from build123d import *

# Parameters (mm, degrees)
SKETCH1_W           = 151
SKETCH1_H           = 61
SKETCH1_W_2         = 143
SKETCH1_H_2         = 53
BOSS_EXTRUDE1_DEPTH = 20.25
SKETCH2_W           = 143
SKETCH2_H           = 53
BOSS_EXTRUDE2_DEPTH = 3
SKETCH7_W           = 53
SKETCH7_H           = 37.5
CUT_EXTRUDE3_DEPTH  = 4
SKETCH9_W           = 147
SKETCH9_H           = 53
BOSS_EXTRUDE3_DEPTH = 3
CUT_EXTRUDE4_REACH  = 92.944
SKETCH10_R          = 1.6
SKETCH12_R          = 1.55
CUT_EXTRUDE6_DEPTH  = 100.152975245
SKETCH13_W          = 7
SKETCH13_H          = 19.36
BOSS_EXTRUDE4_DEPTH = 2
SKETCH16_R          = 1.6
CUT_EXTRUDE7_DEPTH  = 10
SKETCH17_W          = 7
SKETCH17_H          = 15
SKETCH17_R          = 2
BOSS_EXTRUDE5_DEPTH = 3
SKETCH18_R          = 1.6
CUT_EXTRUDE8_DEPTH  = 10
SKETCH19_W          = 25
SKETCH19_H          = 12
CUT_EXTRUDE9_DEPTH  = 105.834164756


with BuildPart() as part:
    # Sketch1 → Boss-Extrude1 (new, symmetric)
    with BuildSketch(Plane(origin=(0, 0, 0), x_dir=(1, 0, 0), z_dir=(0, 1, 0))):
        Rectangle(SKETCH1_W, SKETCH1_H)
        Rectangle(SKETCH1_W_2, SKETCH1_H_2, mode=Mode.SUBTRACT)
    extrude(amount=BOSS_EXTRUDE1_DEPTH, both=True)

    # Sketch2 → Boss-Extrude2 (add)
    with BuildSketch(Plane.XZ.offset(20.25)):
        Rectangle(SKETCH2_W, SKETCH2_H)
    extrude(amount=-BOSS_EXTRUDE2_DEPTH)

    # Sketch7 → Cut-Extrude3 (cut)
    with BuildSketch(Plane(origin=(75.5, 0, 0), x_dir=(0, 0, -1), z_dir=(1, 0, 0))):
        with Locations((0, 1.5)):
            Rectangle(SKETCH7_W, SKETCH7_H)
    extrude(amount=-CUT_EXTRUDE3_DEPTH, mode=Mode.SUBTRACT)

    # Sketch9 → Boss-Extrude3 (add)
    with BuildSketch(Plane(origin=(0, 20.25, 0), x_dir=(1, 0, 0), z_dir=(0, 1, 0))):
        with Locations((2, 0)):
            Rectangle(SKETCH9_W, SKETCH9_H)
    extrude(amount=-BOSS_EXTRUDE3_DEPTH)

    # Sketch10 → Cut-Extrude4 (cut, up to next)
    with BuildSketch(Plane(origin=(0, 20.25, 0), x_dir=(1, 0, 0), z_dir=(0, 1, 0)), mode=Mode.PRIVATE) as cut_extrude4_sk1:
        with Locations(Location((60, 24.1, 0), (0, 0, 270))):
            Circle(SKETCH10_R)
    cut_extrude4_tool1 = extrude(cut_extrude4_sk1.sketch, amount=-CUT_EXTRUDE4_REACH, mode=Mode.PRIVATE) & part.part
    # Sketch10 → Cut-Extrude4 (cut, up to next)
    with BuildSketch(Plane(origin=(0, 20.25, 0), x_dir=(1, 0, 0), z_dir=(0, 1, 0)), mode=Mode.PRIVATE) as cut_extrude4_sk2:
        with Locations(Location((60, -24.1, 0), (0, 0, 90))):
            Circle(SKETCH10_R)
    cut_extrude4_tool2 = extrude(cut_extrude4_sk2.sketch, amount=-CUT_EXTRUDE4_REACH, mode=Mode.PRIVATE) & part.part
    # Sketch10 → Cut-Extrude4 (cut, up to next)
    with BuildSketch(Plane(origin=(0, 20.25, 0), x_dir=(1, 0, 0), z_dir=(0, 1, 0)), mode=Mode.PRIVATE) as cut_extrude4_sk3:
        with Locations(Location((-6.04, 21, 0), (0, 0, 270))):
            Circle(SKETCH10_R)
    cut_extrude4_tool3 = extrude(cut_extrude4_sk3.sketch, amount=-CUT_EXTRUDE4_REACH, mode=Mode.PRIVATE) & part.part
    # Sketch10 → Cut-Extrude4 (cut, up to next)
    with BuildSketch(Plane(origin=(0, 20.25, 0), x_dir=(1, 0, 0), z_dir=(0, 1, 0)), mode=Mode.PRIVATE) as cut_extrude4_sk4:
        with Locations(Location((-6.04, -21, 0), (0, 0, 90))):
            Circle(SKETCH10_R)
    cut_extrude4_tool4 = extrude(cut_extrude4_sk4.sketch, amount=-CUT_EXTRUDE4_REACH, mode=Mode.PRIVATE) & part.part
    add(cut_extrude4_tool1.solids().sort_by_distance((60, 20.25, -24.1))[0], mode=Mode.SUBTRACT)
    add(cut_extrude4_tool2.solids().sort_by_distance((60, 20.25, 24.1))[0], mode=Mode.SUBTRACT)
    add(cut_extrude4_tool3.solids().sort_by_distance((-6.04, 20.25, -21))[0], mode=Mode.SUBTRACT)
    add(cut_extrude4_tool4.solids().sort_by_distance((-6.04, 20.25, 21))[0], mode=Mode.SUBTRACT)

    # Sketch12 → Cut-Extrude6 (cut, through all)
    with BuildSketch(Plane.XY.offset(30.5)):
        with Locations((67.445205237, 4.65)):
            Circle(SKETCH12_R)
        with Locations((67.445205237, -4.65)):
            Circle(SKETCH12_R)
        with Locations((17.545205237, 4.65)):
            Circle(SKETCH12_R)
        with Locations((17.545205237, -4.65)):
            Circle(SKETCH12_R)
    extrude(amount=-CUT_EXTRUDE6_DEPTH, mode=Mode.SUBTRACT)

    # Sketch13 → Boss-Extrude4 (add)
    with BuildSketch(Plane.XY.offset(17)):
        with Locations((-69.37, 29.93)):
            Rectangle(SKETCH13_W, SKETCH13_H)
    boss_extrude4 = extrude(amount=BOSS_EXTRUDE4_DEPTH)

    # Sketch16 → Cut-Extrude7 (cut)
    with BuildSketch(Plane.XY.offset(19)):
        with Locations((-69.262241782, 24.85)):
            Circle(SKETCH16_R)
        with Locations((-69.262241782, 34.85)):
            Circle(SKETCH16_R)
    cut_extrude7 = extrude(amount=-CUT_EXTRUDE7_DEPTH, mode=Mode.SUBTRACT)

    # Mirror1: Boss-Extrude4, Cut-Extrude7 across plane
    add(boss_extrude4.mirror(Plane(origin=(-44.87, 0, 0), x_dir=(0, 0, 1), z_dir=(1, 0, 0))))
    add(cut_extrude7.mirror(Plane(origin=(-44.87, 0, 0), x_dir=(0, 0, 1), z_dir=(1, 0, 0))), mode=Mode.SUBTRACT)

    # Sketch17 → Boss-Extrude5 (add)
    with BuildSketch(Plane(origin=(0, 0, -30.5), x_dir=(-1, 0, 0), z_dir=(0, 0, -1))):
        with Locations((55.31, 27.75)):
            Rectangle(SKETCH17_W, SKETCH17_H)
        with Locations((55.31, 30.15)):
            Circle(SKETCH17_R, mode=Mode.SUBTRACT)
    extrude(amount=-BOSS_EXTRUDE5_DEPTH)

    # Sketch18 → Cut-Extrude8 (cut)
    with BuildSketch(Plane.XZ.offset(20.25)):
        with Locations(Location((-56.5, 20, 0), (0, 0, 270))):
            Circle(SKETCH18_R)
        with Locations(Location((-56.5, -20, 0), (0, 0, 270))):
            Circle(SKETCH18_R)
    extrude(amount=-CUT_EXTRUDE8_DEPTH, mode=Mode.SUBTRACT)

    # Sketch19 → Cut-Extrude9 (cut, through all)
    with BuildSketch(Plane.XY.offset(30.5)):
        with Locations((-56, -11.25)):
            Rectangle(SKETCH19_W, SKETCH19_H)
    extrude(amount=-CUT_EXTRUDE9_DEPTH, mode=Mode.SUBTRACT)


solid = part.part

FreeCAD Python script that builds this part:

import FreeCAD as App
import Part
import Sketcher
from FreeCAD import Vector
Q = App.Units.Quantity

doc = App.newDocument("Part")
body = doc.addObject("PartDesign::Body", "Body")

sketch1 = body.newObject("Sketcher::SketchObject", "Sketch")
sketch1.AttachmentSupport = (doc.getObject("XZ_Plane"), [""])
sketch1.MapMode = "FlatFace"
sketch1.addGeometry([
    Part.LineSegment(Vector(-76, -30, 0), Vector(-76, 30, 0)),
    Part.LineSegment(Vector(-76, 30, 0), Vector(76, 30, 0)),
    Part.LineSegment(Vector(76, 30, 0), Vector(76, -30, 0)),
    Part.LineSegment(Vector(76, -30, 0), Vector(-76, -30, 0)),
    Part.LineSegment(Vector(72, 26, 0), Vector(-72, 26, 0)),
    Part.LineSegment(Vector(-72, 26, 0), Vector(-72, -26, 0)),
    Part.LineSegment(Vector(-72, -26, 0), Vector(72, -26, 0)),
    Part.LineSegment(Vector(72, -26, 0), Vector(72, 26, 0)),
], False)
sketch1.addConstraint([
    Sketcher.Constraint("Coincident", 0, 2, 1, 1),
    Sketcher.Constraint("Coincident", 1, 2, 2, 1),
    Sketcher.Constraint("Coincident", 2, 2, 3, 1),
    Sketcher.Constraint("Coincident", 3, 2, 0, 1),
    Sketcher.Constraint("Coincident", 4, 2, 5, 1),
    Sketcher.Constraint("Coincident", 5, 2, 6, 1),
    Sketcher.Constraint("Coincident", 6, 2, 7, 1),
    Sketcher.Constraint("Coincident", 7, 2, 4, 1),
    Sketcher.Constraint("Vertical", 0),
    Sketcher.Constraint("Horizontal", 1),
    Sketcher.Constraint("Vertical", 2),
    Sketcher.Constraint("Horizontal", 3),
    Sketcher.Constraint("Horizontal", 4),
    Sketcher.Constraint("Vertical", 5),
    Sketcher.Constraint("Horizontal", 6),
    Sketcher.Constraint("Vertical", 7),
    Sketcher.Constraint("Symmetric", 0, 2, 2, 2, -1, 1),
    Sketcher.Constraint("Symmetric", 4, 2, 6, 2, -1, 1),
    Sketcher.Constraint("DistanceX", 1, 1, 1, 2, Q("151 mm")),
    Sketcher.Constraint("DistanceX", 4, 2, 4, 1, Q("143 mm")),
    Sketcher.Constraint("DistanceY", 0, 1, 0, 2, Q("61 mm")),
    Sketcher.Constraint("DistanceY", 5, 2, 5, 1, Q("53 mm")),
])
pad1 = body.newObject("PartDesign::Pad", "Pad")
pad1.Profile = sketch1
pad1.Length = 40.5
pad1.Midplane = True

sketch2 = body.newObject("Sketcher::SketchObject", "Sketch001")
sketch2.AttachmentSupport = (doc.getObject("XZ_Plane"), [""])
sketch2.MapMode = "FlatFace"
sketch2.AttachmentOffset = App.Placement(Vector(0, 0, 20.25), App.Rotation())
sketch2.addGeometry([
    Part.LineSegment(Vector(-72, 26, 0), Vector(-72, -26, 0)),
    Part.LineSegment(Vector(-72, -26, 0), Vector(72, -26, 0)),
    Part.LineSegment(Vector(72, -26, 0), Vector(72, 26, 0)),
    Part.LineSegment(Vector(72, 26, 0), Vector(-72, 26, 0)),
], False)
sketch2.addConstraint([
    Sketcher.Constraint("Coincident", 0, 2, 1, 1),
    Sketcher.Constraint("Coincident", 1, 2, 2, 1),
    Sketcher.Constraint("Coincident", 2, 2, 3, 1),
    Sketcher.Constraint("Coincident", 3, 2, 0, 1),
    Sketcher.Constraint("Vertical", 0),
    Sketcher.Constraint("Horizontal", 1),
    Sketcher.Constraint("Vertical", 2),
    Sketcher.Constraint("Horizontal", 3),
    Sketcher.Constraint("Symmetric", 0, 2, 2, 2, -1, 1),
    Sketcher.Constraint("DistanceX", 1, 1, 1, 2, Q("143 mm")),
    Sketcher.Constraint("DistanceY", 0, 2, 0, 1, Q("53 mm")),
])
pad2 = body.newObject("PartDesign::Pad", "Pad001")
pad2.Profile = sketch2
pad2.Length = 3
pad2.Reversed = True

sketch3 = body.newObject("Sketcher::SketchObject", "Sketch002")
sketch3.AttachmentSupport = (doc.getObject("YZ_Plane"), [""])
sketch3.MapMode = "FlatFace"
sketch3.AttachmentOffset = App.Placement(Vector(0, 0, 75.5), App.Rotation())
sketch3.addGeometry([
    Part.LineSegment(Vector(20, 26, 0), Vector(-17, 26, 0)),
    Part.LineSegment(Vector(-17, 26, 0), Vector(-17, -26, 0)),
    Part.LineSegment(Vector(-17, -26, 0), Vector(20, -26, 0)),
    Part.LineSegment(Vector(20, -26, 0), Vector(20, 26, 0)),
], False)
sketch3.addConstraint([
    Sketcher.Constraint("Coincident", 0, 2, 1, 1),
    Sketcher.Constraint("Coincident", 1, 2, 2, 1),
    Sketcher.Constraint("Coincident", 2, 2, 3, 1),
    Sketcher.Constraint("Coincident", 3, 2, 0, 1),
    Sketcher.Constraint("Horizontal", 0),
    Sketcher.Constraint("Vertical", 1),
    Sketcher.Constraint("Horizontal", 2),
    Sketcher.Constraint("Vertical", 3),
    Sketcher.Constraint("DistanceY", 1, 2, 1, 1, Q("53 mm")),
    Sketcher.Constraint("DistanceX", 0, 2, 0, 1, Q("37.5 mm")),
    Sketcher.Constraint("DistanceY", -1, 1, 0, 2, Q("26.5 mm")),
    Sketcher.Constraint("DistanceX", 0, 2, -1, 1, Q("17.25 mm")),
])
pocket1 = body.newObject("PartDesign::Pocket", "Pocket")
pocket1.Profile = sketch3
pocket1.Length = 4

sketch4 = body.newObject("Sketcher::SketchObject", "Sketch003")
sketch4.AttachmentSupport = (doc.getObject("XZ_Plane"), [""])
sketch4.MapMode = "FlatFace"
sketch4.AttachmentOffset = App.Placement(Vector(0, 0, -20.25), App.Rotation())
sketch4.addGeometry([
    Part.LineSegment(Vector(-72, -26, 0), Vector(-72, 26, 0)),
    Part.LineSegment(Vector(-72, 26, 0), Vector(76, 26, 0)),
    Part.LineSegment(Vector(76, 26, 0), Vector(76, -26, 0)),
    Part.LineSegment(Vector(76, -26, 0), Vector(-72, -26, 0)),
], False)
sketch4.addConstraint([
    Sketcher.Constraint("Coincident", 0, 2, 1, 1),
    Sketcher.Constraint("Coincident", 1, 2, 2, 1),
    Sketcher.Constraint("Coincident", 2, 2, 3, 1),
    Sketcher.Constraint("Coincident", 3, 2, 0, 1),
    Sketcher.Constraint("Vertical", 0),
    Sketcher.Constraint("Horizontal", 1),
    Sketcher.Constraint("Vertical", 2),
    Sketcher.Constraint("Horizontal", 3),
    Sketcher.Constraint("DistanceX", 1, 1, 1, 2, Q("147 mm")),
    Sketcher.Constraint("DistanceY", 0, 1, 0, 2, Q("53 mm")),
    Sketcher.Constraint("DistanceX", 0, 2, -1, 1, Q("71.5 mm")),
    Sketcher.Constraint("DistanceY", -1, 1, 0, 2, Q("26.5 mm")),
])
pad3 = body.newObject("PartDesign::Pad", "Pad002")
pad3.Profile = sketch4
pad3.Length = 3

sketch5 = body.newObject("Sketcher::SketchObject", "Sketch004")
sketch5.AttachmentSupport = (doc.getObject("XZ_Plane"), [""])
sketch5.MapMode = "FlatFace"
sketch5.AttachmentOffset = App.Placement(Vector(0, 0, -20.25), App.Rotation())
sketch5.addGeometry(Part.Circle(Vector(60, -24.1, 0), Vector(0, 0, 1), 1.6), False)
sketch5.addConstraint([
    Sketcher.Constraint("Diameter", 0, Q("3.2 mm")),
    Sketcher.Constraint("DistanceX", -1, 1, 0, 3, Q("60 mm")),
    Sketcher.Constraint("DistanceY", 0, 3, -1, 1, Q("24.1 mm")),
])
pocket2 = body.newObject("PartDesign::Pocket", "Pocket001")
pocket2.Profile = sketch5
pocket2.Type = "UpToFirst"
pocket2.Reversed = True

sketch6 = body.newObject("Sketcher::SketchObject", "Sketch005")
sketch6.AttachmentSupport = (doc.getObject("XZ_Plane"), [""])
sketch6.MapMode = "FlatFace"
sketch6.AttachmentOffset = App.Placement(Vector(0, 0, -20.25), App.Rotation())
sketch6.addGeometry(Part.Circle(Vector(60, 24.1, 0), Vector(0, 0, 1), 1.6), False)
sketch6.addConstraint([
    Sketcher.Constraint("Diameter", 0, Q("3.2 mm")),
    Sketcher.Constraint("DistanceX", -1, 1, 0, 3, Q("60 mm")),
    Sketcher.Constraint("DistanceY", -1, 1, 0, 3, Q("24.1 mm")),
])
pocket3 = body.newObject("PartDesign::Pocket", "Pocket002")
pocket3.Profile = sketch6
pocket3.Type = "UpToFirst"
pocket3.Reversed = True

sketch7 = body.newObject("Sketcher::SketchObject", "Sketch006")
sketch7.AttachmentSupport = (doc.getObject("XZ_Plane"), [""])
sketch7.MapMode = "FlatFace"
sketch7.AttachmentOffset = App.Placement(Vector(0, 0, -20.25), App.Rotation())
sketch7.addGeometry(Part.Circle(Vector(-6, -21, 0), Vector(0, 0, 1), 1.6), False)
sketch7.addConstraint([
    Sketcher.Constraint("Diameter", 0, Q("3.2 mm")),
    Sketcher.Constraint("DistanceY", 0, 3, -1, 1, Q("21 mm")),
    Sketcher.Constraint("DistanceX", 0, 3, -1, 1, Q("6.04 mm")),
])
pocket4 = body.newObject("PartDesign::Pocket", "Pocket003")
pocket4.Profile = sketch7
pocket4.Type = "UpToFirst"
pocket4.Reversed = True

sketch8 = body.newObject("Sketcher::SketchObject", "Sketch007")
sketch8.AttachmentSupport = (doc.getObject("XZ_Plane"), [""])
sketch8.MapMode = "FlatFace"
sketch8.AttachmentOffset = App.Placement(Vector(0, 0, -20.25), App.Rotation())
sketch8.addGeometry(Part.Circle(Vector(-6, 21, 0), Vector(0, 0, 1), 1.6), False)
sketch8.addConstraint([
    Sketcher.Constraint("Diameter", 0, Q("3.2 mm")),
    Sketcher.Constraint("DistanceY", -1, 1, 0, 3, Q("21 mm")),
    Sketcher.Constraint("DistanceX", 0, 3, -1, 1, Q("6.04 mm")),
])
pocket5 = body.newObject("PartDesign::Pocket", "Pocket004")
pocket5.Profile = sketch8
pocket5.Type = "UpToFirst"
pocket5.Reversed = True

sketch9 = body.newObject("Sketcher::SketchObject", "Sketch008")
sketch9.AttachmentSupport = (doc.getObject("XY_Plane"), [""])
sketch9.MapMode = "FlatFace"
sketch9.AttachmentOffset = App.Placement(Vector(0, 0, 30.5), App.Rotation())
sketch9.addGeometry([
    Part.Circle(Vector(67.4, 4.7, 0), Vector(0, 0, 1), 1.6),
    Part.Circle(Vector(67.4, -4.7, 0), Vector(0, 0, 1), 1.6),
    Part.Circle(Vector(17.5, 4.7, 0), Vector(0, 0, 1), 1.6),
    Part.Circle(Vector(17.5, -4.7, 0), Vector(0, 0, 1), 1.6),
], False)
sketch9.addConstraint([
    Sketcher.Constraint("Equal", 0, 1),
    Sketcher.Constraint("Equal", 1, 2),
    Sketcher.Constraint("Equal", 2, 3),
    Sketcher.Constraint("Symmetric", 0, 3, 1, 3, -1),
    Sketcher.Constraint("Symmetric", 2, 3, 3, 3, -1),
    Sketcher.Constraint("Horizontal", 0, 3, 2, 3),
    Sketcher.Constraint("Diameter", 0, Q("3.1 mm")),
    Sketcher.Constraint("DistanceY", 1, 3, 0, 3, Q("9.3 mm")),
    Sketcher.Constraint("DistanceX", 2, 3, 0, 3, Q("49.9 mm")),
    Sketcher.Constraint("DistanceX", -1, 1, 0, 3, Q("67.445205 mm")),
])
pocket6 = body.newObject("PartDesign::Pocket", "Pocket005")
pocket6.Profile = sketch9
pocket6.Type = "ThroughAll"

sketch10 = body.newObject("Sketcher::SketchObject", "Sketch009")
sketch10.AttachmentSupport = (doc.getObject("XY_Plane"), [""])
sketch10.MapMode = "FlatFace"
sketch10.AttachmentOffset = App.Placement(Vector(0, 0, 17), App.Rotation())
sketch10.addGeometry([
    Part.LineSegment(Vector(-73, 40, 0), Vector(-73, 20, 0)),
    Part.LineSegment(Vector(-73, 20, 0), Vector(-66, 20, 0)),
    Part.LineSegment(Vector(-66, 20, 0), Vector(-66, 40, 0)),
    Part.LineSegment(Vector(-66, 40, 0), Vector(-73, 40, 0)),
], False)
sketch10.addConstraint([
    Sketcher.Constraint("Coincident", 0, 2, 1, 1),
    Sketcher.Constraint("Coincident", 1, 2, 2, 1),
    Sketcher.Constraint("Coincident", 2, 2, 3, 1),
    Sketcher.Constraint("Coincident", 3, 2, 0, 1),
    Sketcher.Constraint("Vertical", 0),
    Sketcher.Constraint("Horizontal", 1),
    Sketcher.Constraint("Vertical", 2),
    Sketcher.Constraint("Horizontal", 3),
    Sketcher.Constraint("DistanceX", 1, 1, 1, 2, Q("7 mm")),
    Sketcher.Constraint("DistanceY", 0, 2, 0, 1, Q("19.36 mm")),
    Sketcher.Constraint("DistanceX", 0, 2, -1, 1, Q("72.87 mm")),
    Sketcher.Constraint("DistanceY", -1, 1, 0, 2, Q("20.25 mm")),
])
pad4 = body.newObject("PartDesign::Pad", "Pad003")
pad4.Profile = sketch10
pad4.Length = 2

sketch11 = body.newObject("Sketcher::SketchObject", "Sketch010")
sketch11.AttachmentSupport = (doc.getObject("XY_Plane"), [""])
sketch11.MapMode = "FlatFace"
sketch11.AttachmentOffset = App.Placement(Vector(0, 0, 19), App.Rotation())
sketch11.addGeometry([
    Part.Circle(Vector(-69.3, 24.9, 0), Vector(0, 0, 1), 1.6),
    Part.Circle(Vector(-69.3, 34.9, 0), Vector(0, 0, 1), 1.6),
], False)
sketch11.addConstraint([
    Sketcher.Constraint("Equal", 0, 1),
    Sketcher.Constraint("Vertical", 0, 3, 1, 3),
    Sketcher.Constraint("Diameter", 0, Q("3.2 mm")),
    Sketcher.Constraint("DistanceY", 0, 3, 1, 3, Q("10 mm")),
    Sketcher.Constraint("DistanceY", -1, 1, 0, 3, Q("24.85 mm")),
    Sketcher.Constraint("DistanceX", 0, 3, -1, 1, Q("69.262242 mm")),
])
pocket7 = body.newObject("PartDesign::Pocket", "Pocket006")
pocket7.Profile = sketch11
pocket7.Length = 10
doc.recompute()

datumplane = body.newObject("PartDesign::Plane", "DatumPlane")
datumplane.AttachmentSupport = (doc.getObject("YZ_Plane"), [""])
datumplane.MapMode = "FlatFace"
datumplane.AttachmentOffset = App.Placement(Vector(0, 0, -44.87), App.Rotation())
mirrored = body.newObject("PartDesign::Mirrored", "Mirrored")
mirrored.Originals = [pad4, pocket7]
mirrored.MirrorPlane = (datumplane, [""])
body.Tip = mirrored

sketch12 = body.newObject("Sketcher::SketchObject", "Sketch011")
sketch12.AttachmentSupport = (doc.getObject("XY_Plane"), [""])
sketch12.MapMode = "FlatFace"
sketch12.AttachmentOffset = App.Placement(Vector(0, 0, -30.5), App.Rotation())
sketch12.addGeometry([
    Part.LineSegment(Vector(-51.8, 35.2, 0), Vector(-51.8, 20.2, 0)),
    Part.LineSegment(Vector(-51.8, 20.2, 0), Vector(-58.8, 20.2, 0)),
    Part.LineSegment(Vector(-58.8, 20.2, 0), Vector(-58.8, 35.2, 0)),
    Part.LineSegment(Vector(-58.8, 35.2, 0), Vector(-51.8, 35.2, 0)),
    Part.Circle(Vector(-55.3, 30.1, 0), Vector(0, 0, 1), 2),
], False)
sketch12.addConstraint([
    Sketcher.Constraint("Coincident", 0, 2, 1, 1),
    Sketcher.Constraint("Coincident", 1, 2, 2, 1),
    Sketcher.Constraint("Coincident", 2, 2, 3, 1),
    Sketcher.Constraint("Coincident", 3, 2, 0, 1),
    Sketcher.Constraint("Vertical", 0),
    Sketcher.Constraint("Horizontal", 1),
    Sketcher.Constraint("Vertical", 2),
    Sketcher.Constraint("Horizontal", 3),
    Sketcher.Constraint("Diameter", 4, Q("4 mm")),
    Sketcher.Constraint("DistanceX", 1, 2, 1, 1, Q("7 mm")),
    Sketcher.Constraint("DistanceY", 0, 2, 0, 1, Q("15 mm")),
    Sketcher.Constraint("DistanceX", 4, 3, 0, 2, Q("3.5 mm")),
    Sketcher.Constraint("DistanceY", 0, 2, 4, 3, Q("9.9 mm")),
    Sketcher.Constraint("DistanceX", 4, 3, -1, 1, Q("55.31 mm")),
    Sketcher.Constraint("DistanceY", -1, 1, 4, 3, Q("30.15 mm")),
])
pad5 = body.newObject("PartDesign::Pad", "Pad004")
pad5.Profile = sketch12
pad5.Length = 3

sketch13 = body.newObject("Sketcher::SketchObject", "Sketch012")
sketch13.AttachmentSupport = (doc.getObject("XZ_Plane"), [""])
sketch13.MapMode = "FlatFace"
sketch13.AttachmentOffset = App.Placement(Vector(0, 0, 20.25), App.Rotation())
sketch13.addGeometry([
    Part.Circle(Vector(-56.5, 20, 0), Vector(0, 0, 1), 1.6),
    Part.Circle(Vector(-56.5, -20, 0), Vector(0, 0, 1), 1.6),
], False)
sketch13.addConstraint([
    Sketcher.Constraint("Equal", 0, 1),
    Sketcher.Constraint("Symmetric", 0, 3, 1, 3, -1),
    Sketcher.Constraint("Diameter", 0, Q("3.2 mm")),
    Sketcher.Constraint("DistanceY", -1, 1, 0, 3, Q("20 mm")),
    Sketcher.Constraint("DistanceX", 0, 3, -1, 1, Q("56.5 mm")),
])
pocket8 = body.newObject("PartDesign::Pocket", "Pocket007")
pocket8.Profile = sketch13
pocket8.Length = 10

sketch14 = body.newObject("Sketcher::SketchObject", "Sketch013")
sketch14.AttachmentSupport = (doc.getObject("XY_Plane"), [""])
sketch14.MapMode = "FlatFace"
sketch14.AttachmentOffset = App.Placement(Vector(0, 0, 30.5), App.Rotation())
sketch14.addGeometry([
    Part.LineSegment(Vector(-68, -5, 0), Vector(-68, -17, 0)),
    Part.LineSegment(Vector(-68, -17, 0), Vector(-44, -17, 0)),
    Part.LineSegment(Vector(-44, -17, 0), Vector(-44, -5, 0)),
    Part.LineSegment(Vector(-44, -5, 0), Vector(-68, -5, 0)),
], False)
sketch14.addConstraint([
    Sketcher.Constraint("Coincident", 0, 2, 1, 1),
    Sketcher.Constraint("Coincident", 1, 2, 2, 1),
    Sketcher.Constraint("Coincident", 2, 2, 3, 1),
    Sketcher.Constraint("Coincident", 3, 2, 0, 1),
    Sketcher.Constraint("Vertical", 0),
    Sketcher.Constraint("Horizontal", 1),
    Sketcher.Constraint("Vertical", 2),
    Sketcher.Constraint("Horizontal", 3),
    Sketcher.Constraint("DistanceX", 1, 1, 1, 2, Q("25 mm")),
    Sketcher.Constraint("DistanceY", 0, 2, 0, 1, Q("12 mm")),
    Sketcher.Constraint("DistanceX", 0, 2, -1, 1, Q("68.5 mm")),
    Sketcher.Constraint("DistanceY", 0, 2, -1, 1, Q("17.25 mm")),
])
pocket9 = body.newObject("PartDesign::Pocket", "Pocket008")
pocket9.Profile = sketch14
pocket9.Type = "ThroughAll"

doc.recompute()
